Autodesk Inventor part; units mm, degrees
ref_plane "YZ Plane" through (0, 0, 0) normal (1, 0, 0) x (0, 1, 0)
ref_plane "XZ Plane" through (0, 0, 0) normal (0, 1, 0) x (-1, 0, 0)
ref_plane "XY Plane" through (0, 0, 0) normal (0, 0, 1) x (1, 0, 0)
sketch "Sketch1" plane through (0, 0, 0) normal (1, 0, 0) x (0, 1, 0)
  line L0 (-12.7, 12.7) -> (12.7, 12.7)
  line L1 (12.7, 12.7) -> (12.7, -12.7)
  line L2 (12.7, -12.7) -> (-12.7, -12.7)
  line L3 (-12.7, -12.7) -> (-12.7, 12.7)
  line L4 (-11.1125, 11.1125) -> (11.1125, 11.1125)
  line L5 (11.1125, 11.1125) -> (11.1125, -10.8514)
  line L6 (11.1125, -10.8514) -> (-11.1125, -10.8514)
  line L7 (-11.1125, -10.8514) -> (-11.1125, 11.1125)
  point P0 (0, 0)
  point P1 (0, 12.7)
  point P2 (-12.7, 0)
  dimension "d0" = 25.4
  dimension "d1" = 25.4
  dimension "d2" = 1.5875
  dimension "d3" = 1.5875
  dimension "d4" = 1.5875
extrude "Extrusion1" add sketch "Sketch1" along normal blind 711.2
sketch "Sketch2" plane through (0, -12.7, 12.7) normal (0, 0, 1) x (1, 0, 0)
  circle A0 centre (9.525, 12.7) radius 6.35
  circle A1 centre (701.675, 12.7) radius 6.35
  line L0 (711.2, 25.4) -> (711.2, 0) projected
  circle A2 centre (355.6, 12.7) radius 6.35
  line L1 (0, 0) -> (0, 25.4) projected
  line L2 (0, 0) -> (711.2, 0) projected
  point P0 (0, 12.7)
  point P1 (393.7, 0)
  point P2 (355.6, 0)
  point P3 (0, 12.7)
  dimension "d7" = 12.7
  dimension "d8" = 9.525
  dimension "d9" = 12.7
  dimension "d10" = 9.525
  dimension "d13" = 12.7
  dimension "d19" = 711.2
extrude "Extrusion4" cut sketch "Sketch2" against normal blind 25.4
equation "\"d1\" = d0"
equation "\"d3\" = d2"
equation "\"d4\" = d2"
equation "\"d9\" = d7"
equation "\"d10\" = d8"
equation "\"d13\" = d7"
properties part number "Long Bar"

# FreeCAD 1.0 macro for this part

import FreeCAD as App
import Part
import Sketcher
from FreeCAD import Vector
Q = App.Units.Quantity


def add_polygon(sketch, points):
    """Adds a closed chain of lines whose ends are joined by coincident constraints."""
    first, n = sketch.GeometryCount, len(points)
    for a, b in zip(points, points[1:] + points[:1]):
        sketch.addGeometry(Part.LineSegment(App.Vector(*a, 0), App.Vector(*b, 0)), False)
    for i in range(n):
        sketch.addConstraint(Sketcher.Constraint("Coincident", first + i, 2, first + (i + 1) % n, 1))

doc = App.newDocument("Part")
params = doc.addObject("Spreadsheet::Sheet", "Params")
for row, (alias, value) in enumerate([
    ("sketch1_width", "1 in"),
    ("pad1_length", "28 in"),
    ("sketch2_diameter", "0.5 in"),
    ("pocket1_length", "1 in"),
], start=1):
    params.set(f"A{row}", alias)
    params.set(f"B{row}", "=" + value)
    params.setAlias(f"B{row}", alias)

body = doc.addObject("PartDesign::Body", "Body")

sketch1 = body.newObject("Sketcher::SketchObject", "Sketch")
sketch1.AttachmentSupport = (doc.getObject("YZ_Plane"), [""])
sketch1.MapMode = "FlatFace"
add_polygon(sketch1, [(13, 13), (-13, 13), (-13, -13), (13, -13)])
add_polygon(sketch1, [(-11, -11), (-11, 11), (11, 11), (11, -11)])
sketch1.addConstraint([
    Sketcher.Constraint("Horizontal", 0),
    Sketcher.Constraint("Vertical", 1),
    Sketcher.Constraint("Horizontal", 2),
    Sketcher.Constraint("Vertical", 3),
    Sketcher.Constraint("Vertical", 4),
    Sketcher.Constraint("Horizontal", 5),
    Sketcher.Constraint("Vertical", 6),
    Sketcher.Constraint("Horizontal", 7),
    Sketcher.Constraint("Symmetric", 0, 2, 2, 2, -1, 1),
    Sketcher.Constraint("Equal", 2, 1),
    Sketcher.Constraint("DistanceX", 0, 2, 0, 1, Q("1 in")),
    Sketcher.Constraint("DistanceX", 0, 2, 4, 2, Q("0.0625 in")),
    Sketcher.Constraint("DistanceY", 4, 2, 0, 2, Q("0.0625 in")),
    Sketcher.Constraint("DistanceX", 5, 2, 3, 2, Q("0.0625 in")),
    Sketcher.Constraint("DistanceY", 4, 1, 4, 2, 21.964),
])
sketch1.setExpression("Constraints[18]", "Params.sketch1_width")
pad1 = body.newObject("PartDesign::Pad", "Pad")
pad1.Profile = sketch1
pad1.setExpression("Length", "Params.pad1_length")

sketch2 = body.newObject("Sketcher::SketchObject", "Sketch001")
sketch2.AttachmentSupport = (doc.getObject("XY_Plane"), [""])
sketch2.MapMode = "FlatFace"
sketch2.AttachmentOffset = App.Placement(Vector(0, 0, 0.5 * 25.4), App.Rotation())
sketch2.addGeometry([
    Part.Circle(Vector(10, 0, 0), Vector(0, 0, 1), 6),
    Part.Circle(Vector(702, 0, 0), Vector(0, 0, 1), 6),
    Part.Circle(Vector(356, 0, 0), Vector(0, 0, 1), 6),
], False)
sketch2.addConstraint([
    Sketcher.Constraint("Equal", 0, 1),
    Sketcher.Constraint("Equal", 1, 2),
    Sketcher.Constraint("PointOnObject", 0, 3, -1),
    Sketcher.Constraint("PointOnObject", 1, 3, -1),
    Sketcher.Constraint("PointOnObject", 2, 3, -1),
    Sketcher.Constraint("Diameter", 0, Q("0.5 in")),
    Sketcher.Constraint("DistanceX", -1, 1, 0, 3, Q("0.375 in")),
    Sketcher.Constraint("DistanceX", -1, 1, 2, 3, Q("14 in")),
    Sketcher.Constraint("DistanceX", 0, 3, 1, 3, Q("27.25 in")),
])
sketch2.setExpression("Constraints[5]", "Params.sketch2_diameter")
pocket1 = body.newObject("PartDesign::Pocket", "Pocket")
pocket1.Profile = sketch2
pocket1.setExpression("Length", "Params.pocket1_length")

doc.recompute()
